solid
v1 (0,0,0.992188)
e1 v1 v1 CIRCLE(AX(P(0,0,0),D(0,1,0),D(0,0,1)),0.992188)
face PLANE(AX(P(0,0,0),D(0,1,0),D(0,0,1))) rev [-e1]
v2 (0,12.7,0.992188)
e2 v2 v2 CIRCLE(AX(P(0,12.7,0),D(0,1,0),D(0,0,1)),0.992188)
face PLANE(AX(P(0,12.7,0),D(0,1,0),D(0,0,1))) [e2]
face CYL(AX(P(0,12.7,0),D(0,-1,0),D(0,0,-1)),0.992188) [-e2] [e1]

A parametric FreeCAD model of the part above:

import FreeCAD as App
import Part
import Sketcher
from FreeCAD import Vector
Q = App.Units.Quantity

doc = App.newDocument("Part")
body = doc.addObject("PartDesign::Body", "Body")

# Sketch on XZ plane
sketch1 = doc.addObject("Sketcher::SketchObject", "Sketch")
body.addObject(sketch1)
sketch1.AttachmentSupport = (doc.XZ_Plane, [""])
sketch1.MapMode = "FlatFace"
sketch1.addGeometry(Part.Circle(Vector(0, 0, 0), Vector(0, 0, 1), 1), False)
sketch1.addConstraint(Sketcher.Constraint("Coincident", 0, 3, -1, 1))
sketch1.addConstraint(Sketcher.Constraint("Diameter", 0, Q("0.078125 in")))
pad1 = doc.addObject("PartDesign::Pad", "Pad")
body.addObject(pad1)
pad1.Profile = sketch1
pad1.Length = Q("0.5 in")
pad1.Reversed = True

doc.recompute()
